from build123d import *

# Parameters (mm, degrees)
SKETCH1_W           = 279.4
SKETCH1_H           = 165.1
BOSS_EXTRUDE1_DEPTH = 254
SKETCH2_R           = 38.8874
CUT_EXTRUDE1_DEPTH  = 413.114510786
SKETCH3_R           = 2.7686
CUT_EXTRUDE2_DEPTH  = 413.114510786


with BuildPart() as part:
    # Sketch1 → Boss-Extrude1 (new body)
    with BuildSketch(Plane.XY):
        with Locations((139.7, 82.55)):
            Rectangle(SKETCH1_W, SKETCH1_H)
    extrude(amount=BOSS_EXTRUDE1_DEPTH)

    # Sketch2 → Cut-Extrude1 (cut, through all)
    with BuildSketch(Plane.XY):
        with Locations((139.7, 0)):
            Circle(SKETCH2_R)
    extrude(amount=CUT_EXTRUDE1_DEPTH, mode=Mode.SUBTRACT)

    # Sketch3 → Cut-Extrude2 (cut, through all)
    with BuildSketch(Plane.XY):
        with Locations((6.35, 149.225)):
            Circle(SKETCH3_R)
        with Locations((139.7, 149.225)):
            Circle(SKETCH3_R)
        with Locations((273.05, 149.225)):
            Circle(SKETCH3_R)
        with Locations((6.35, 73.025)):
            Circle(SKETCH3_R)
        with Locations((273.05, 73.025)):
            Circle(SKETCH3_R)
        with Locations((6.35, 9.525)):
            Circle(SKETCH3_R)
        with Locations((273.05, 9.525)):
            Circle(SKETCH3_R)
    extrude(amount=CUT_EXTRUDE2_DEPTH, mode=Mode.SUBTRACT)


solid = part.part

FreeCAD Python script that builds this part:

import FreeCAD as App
import Part
import Sketcher
from FreeCAD import Vector
Q = App.Units.Quantity

doc = App.newDocument("Part")
params = doc.addObject("Spreadsheet::Sheet", "Params")
for row, (alias, value) in enumerate([
    ("sketch1_width", "11 in"),
    ("sketch1_height", "6.5 in"),
    ("pad1_length", "10 in"),
    ("sketch2_diameter", "3.062 in"),
    ("sketch3_diameter", "0.218 in"),
], start=1):
    params.set(f"A{row}", alias)
    params.set(f"B{row}", "=" + value)
    params.setAlias(f"B{row}", alias)

body = doc.addObject("PartDesign::Body", "Body")

# Sketch on XY plane
sketch1 = body.newObject("Sketcher::SketchObject", "Sketch")
sketch1.AttachmentSupport = (doc.getObject("XY_Plane"), [""])
sketch1.MapMode = "FlatFace"
sketch1.addGeometry(Part.LineSegment(Vector(0, 165.1, 0), Vector(0, 0, 0)), False)
sketch1.addGeometry(Part.LineSegment(Vector(0, 0, 0), Vector(279.4, 0, 0)), False)
sketch1.addGeometry(Part.LineSegment(Vector(279.4, 0, 0), Vector(279.4, 165.1, 0)), False)
sketch1.addGeometry(Part.LineSegment(Vector(279.4, 165.1, 0), Vector(0, 165.1, 0)), False)
sketch1.addConstraint(Sketcher.Constraint("Coincident", 0, 2, 1, 1))
sketch1.addConstraint(Sketcher.Constraint("Coincident", 1, 2, 2, 1))
sketch1.addConstraint(Sketcher.Constraint("Coincident", 2, 2, 3, 1))
sketch1.addConstraint(Sketcher.Constraint("Coincident", 3, 2, 0, 1))
sketch1.addConstraint(Sketcher.Constraint("Vertical", 0))
sketch1.addConstraint(Sketcher.Constraint("Horizontal", 1))
sketch1.addConstraint(Sketcher.Constraint("Vertical", 2))
sketch1.addConstraint(Sketcher.Constraint("Horizontal", 3))
sketch1.addConstraint(Sketcher.Constraint("Coincident", 0, 2, -1, 1))
sketch1.addConstraint(Sketcher.Constraint("DistanceX", 1, 1, 1, 2, Q("11 in")))
sketch1.addConstraint(Sketcher.Constraint("DistanceY", 0, 2, 0, 1, Q("6.5 in")))
sketch1.setExpression("Constraints[9]", "Params.sketch1_width")
sketch1.setExpression("Constraints[10]", "Params.sketch1_height")
pad1 = body.newObject("PartDesign::Pad", "Pad")
pad1.Profile = sketch1
pad1.setExpression("Length", "Params.pad1_length")

# Sketch on XY plane
sketch2 = body.newObject("Sketcher::SketchObject", "Sketch001")
sketch2.AttachmentSupport = (doc.getObject("XY_Plane"), [""])
sketch2.MapMode = "FlatFace"
sketch2.addGeometry(Part.Circle(Vector(139.7, 0, 0), Vector(0, 0, 1), 38.8874), False)
sketch2.addConstraint(Sketcher.Constraint("PointOnObject", 0, 3, -1))
sketch2.addConstraint(Sketcher.Constraint("Diameter", 0, Q("3.062 in")))
sketch2.addConstraint(Sketcher.Constraint("DistanceX", -1, 1, 0, 3, Q("5.5 in")))
sketch2.setExpression("Constraints[1]", "Params.sketch2_diameter")
pocket1 = body.newObject("PartDesign::Pocket", "Pocket")
pocket1.Profile = sketch2
pocket1.Type = "ThroughAll"
pocket1.Reversed = True

# Sketch on XY plane
sketch3 = body.newObject("Sketcher::SketchObject", "Sketch002")
sketch3.AttachmentSupport = (doc.getObject("XY_Plane"), [""])
sketch3.MapMode = "FlatFace"
sketch3.addGeometry(Part.Circle(Vector(6.35, 149.225, 0), Vector(0, 0, 1), 2.7686), False)
sketch3.addGeometry(Part.Circle(Vector(139.7, 149.225, 0), Vector(0, 0, 1), 2.7686), False)
sketch3.addGeometry(Part.Circle(Vector(273.05, 149.225, 0), Vector(0, 0, 1), 2.7686), False)
sketch3.addGeometry(Part.Circle(Vector(6.35, 73.025, 0), Vector(0, 0, 1), 2.7686), False)
sketch3.addGeometry(Part.Circle(Vector(273.05, 73.025, 0), Vector(0, 0, 1), 2.7686), False)
sketch3.addGeometry(Part.Circle(Vector(6.35, 9.525, 0), Vector(0, 0, 1), 2.7686), False)
sketch3.addGeometry(Part.Circle(Vector(273.05, 9.525, 0), Vector(0, 0, 1), 2.7686), False)
sketch3.addConstraint(Sketcher.Constraint("Equal", 0, 1))
sketch3.addConstraint(Sketcher.Constraint("Equal", 1, 2))
sketch3.addConstraint(Sketcher.Constraint("Equal", 2, 3))
sketch3.addConstraint(Sketcher.Constraint("Equal", 3, 4))
sketch3.addConstraint(Sketcher.Constraint("Equal", 4, 5))
sketch3.addConstraint(Sketcher.Constraint("Equal", 5, 6))
sketch3.addConstraint(Sketcher.Constraint("Horizontal", 0, 3, 1, 3))
sketch3.addConstraint(Sketcher.Constraint("Horizontal", 1, 3, 2, 3))
sketch3.addConstraint(Sketcher.Constraint("Horizontal", 3, 3, 4, 3))
sketch3.addConstraint(Sketcher.Constraint("Horizontal", 5, 3, 6, 3))
sketch3.addConstraint(Sketcher.Constraint("Vertical", 0, 3, 3, 3))
sketch3.addConstraint(Sketcher.Constraint("Vertical", 2, 3, 4, 3))
sketch3.addConstraint(Sketcher.Constraint("Vertical", 3, 3, 5, 3))
sketch3.addConstraint(Sketcher.Constraint("Vertical", 4, 3, 6, 3))
sketch3.addConstraint(Sketcher.Constraint("Diameter", 0, Q("0.218 in")))
sketch3.addConstraint(Sketcher.Constraint("DistanceY", 3, 3, 0, 3, Q("3 in")))
sketch3.addConstraint(Sketcher.Constraint("DistanceX", -1, 1, 1, 3, Q("5.5 in")))
sketch3.addConstraint(Sketcher.Constraint("DistanceX", 0, 3, 2, 3, Q("10.5 in")))
sketch3.addConstraint(Sketcher.Constraint("DistanceY", 5, 3, 3, 3, Q("2.5 in")))
sketch3.addConstraint(Sketcher.Constraint("DistanceX", -1, 1, 0, 3, Q("0.25 in")))
sketch3.addConstraint(Sketcher.Constraint("DistanceY", -1, 1, 0, 3, Q("5.875 in")))
sketch3.setExpression("Constraints[14]", "Params.sketch3_diameter")
pocket2 = body.newObject("PartDesign::Pocket", "Pocket001")
pocket2.Profile = sketch3
pocket2.Type = "ThroughAll"
pocket2.Reversed = True

doc.recompute()
